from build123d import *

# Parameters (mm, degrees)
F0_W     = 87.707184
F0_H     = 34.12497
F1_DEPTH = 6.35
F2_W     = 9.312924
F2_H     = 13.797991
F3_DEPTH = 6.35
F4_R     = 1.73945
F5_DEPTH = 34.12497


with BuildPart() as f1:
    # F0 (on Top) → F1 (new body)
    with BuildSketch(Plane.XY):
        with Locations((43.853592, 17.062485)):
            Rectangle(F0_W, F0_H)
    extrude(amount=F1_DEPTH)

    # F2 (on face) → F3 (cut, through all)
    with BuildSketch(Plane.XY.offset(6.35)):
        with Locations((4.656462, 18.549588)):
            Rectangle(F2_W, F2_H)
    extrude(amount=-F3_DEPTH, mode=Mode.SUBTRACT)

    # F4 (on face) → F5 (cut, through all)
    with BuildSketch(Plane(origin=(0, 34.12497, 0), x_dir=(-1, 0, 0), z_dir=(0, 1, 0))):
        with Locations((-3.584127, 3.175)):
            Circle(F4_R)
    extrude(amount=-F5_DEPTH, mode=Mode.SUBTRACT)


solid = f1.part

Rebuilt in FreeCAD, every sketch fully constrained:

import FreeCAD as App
import Part
import Sketcher
from FreeCAD import Vector
Q = App.Units.Quantity


def add_polygon(sketch, points):
    """Adds a closed chain of lines whose ends are joined by coincident constraints."""
    first, n = sketch.GeometryCount, len(points)
    for a, b in zip(points, points[1:] + points[:1]):
        sketch.addGeometry(Part.LineSegment(App.Vector(*a, 0), App.Vector(*b, 0)), False)
    for i in range(n):
        sketch.addConstraint(Sketcher.Constraint("Coincident", first + i, 2, first + (i + 1) % n, 1))

doc = App.newDocument("Part")
body = doc.addObject("PartDesign::Body", "Body")

sketch1 = body.newObject("Sketcher::SketchObject", "Sketch")
sketch1.AttachmentSupport = (doc.getObject("XY_Plane"), [""])
sketch1.MapMode = "FlatFace"
add_polygon(sketch1, [(0, 34), (0, 0), (88, 0), (88, 34)])
sketch1.addConstraint(Sketcher.Constraint("Vertical", 0))
sketch1.addConstraint(Sketcher.Constraint("Horizontal", 1))
sketch1.addConstraint(Sketcher.Constraint("Vertical", 2))
sketch1.addConstraint(Sketcher.Constraint("Horizontal", 3))
sketch1.addConstraint(Sketcher.Constraint("Coincident", 0, 2, -1, 1))
sketch1.addConstraint(Sketcher.Constraint("DistanceY", 0, 2, 0, 1, Q("34.12497 mm")))
sketch1.addConstraint(Sketcher.Constraint("DistanceX", 1, 1, 1, 2, Q("87.707184 mm")))
pad1 = body.newObject("PartDesign::Pad", "Pad")
pad1.Profile = sketch1
pad1.Length = Q("0.25 in")

sketch2 = body.newObject("Sketcher::SketchObject", "Sketch001")
sketch2.AttachmentSupport = (doc.getObject("XY_Plane"), [""])
sketch2.MapMode = "FlatFace"
sketch2.AttachmentOffset = App.Placement(Vector(0, 0, 0.25 * 25.4), App.Rotation())
add_polygon(sketch2, [(0, 25), (0, 12), (9, 12), (9, 25)])
sketch2.addConstraint(Sketcher.Constraint("Vertical", 0))
sketch2.addConstraint(Sketcher.Constraint("Horizontal", 1))
sketch2.addConstraint(Sketcher.Constraint("Vertical", 2))
sketch2.addConstraint(Sketcher.Constraint("Horizontal", 3))
sketch2.addConstraint(Sketcher.Constraint("PointOnObject", 0, 2, -2))
sketch2.addConstraint(Sketcher.Constraint("DistanceY", 0, 2, 0, 1, Q("13.797991 mm")))
sketch2.addConstraint(Sketcher.Constraint("DistanceX", 1, 1, 1, 2, Q("9.312924 mm")))
sketch2.addConstraint(Sketcher.Constraint("DistanceY", -1, 1, 0, 2, Q("11.650593 mm")))
pocket1 = body.newObject("PartDesign::Pocket", "Pocket")
pocket1.Profile = sketch2
pocket1.Type = "ThroughAll"

sketch3 = body.newObject("Sketcher::SketchObject", "Sketch002")
sketch3.AttachmentSupport = (doc.getObject("XZ_Plane"), [""])
sketch3.MapMode = "FlatFace"
sketch3.AttachmentOffset = App.Placement(Vector(0, 0, -34.12497), App.Rotation())
sketch3.addGeometry(Part.Circle(Vector(3.6, 3.2, 0), Vector(0, 0, 1), 1.7), False)
sketch3.addConstraint(Sketcher.Constraint("Diameter", 0, Q("3.4789 mm")))
sketch3.addConstraint(Sketcher.Constraint("DistanceY", -1, 1, 0, 3, Q("0.125 in")))
sketch3.addConstraint(Sketcher.Constraint("DistanceX", -1, 1, 0, 3, Q("3.584127 mm")))
pocket2 = body.newObject("PartDesign::Pocket", "Pocket001")
pocket2.Profile = sketch3
pocket2.Type = "ThroughAll"
pocket2.Reversed = True

doc.recompute()
